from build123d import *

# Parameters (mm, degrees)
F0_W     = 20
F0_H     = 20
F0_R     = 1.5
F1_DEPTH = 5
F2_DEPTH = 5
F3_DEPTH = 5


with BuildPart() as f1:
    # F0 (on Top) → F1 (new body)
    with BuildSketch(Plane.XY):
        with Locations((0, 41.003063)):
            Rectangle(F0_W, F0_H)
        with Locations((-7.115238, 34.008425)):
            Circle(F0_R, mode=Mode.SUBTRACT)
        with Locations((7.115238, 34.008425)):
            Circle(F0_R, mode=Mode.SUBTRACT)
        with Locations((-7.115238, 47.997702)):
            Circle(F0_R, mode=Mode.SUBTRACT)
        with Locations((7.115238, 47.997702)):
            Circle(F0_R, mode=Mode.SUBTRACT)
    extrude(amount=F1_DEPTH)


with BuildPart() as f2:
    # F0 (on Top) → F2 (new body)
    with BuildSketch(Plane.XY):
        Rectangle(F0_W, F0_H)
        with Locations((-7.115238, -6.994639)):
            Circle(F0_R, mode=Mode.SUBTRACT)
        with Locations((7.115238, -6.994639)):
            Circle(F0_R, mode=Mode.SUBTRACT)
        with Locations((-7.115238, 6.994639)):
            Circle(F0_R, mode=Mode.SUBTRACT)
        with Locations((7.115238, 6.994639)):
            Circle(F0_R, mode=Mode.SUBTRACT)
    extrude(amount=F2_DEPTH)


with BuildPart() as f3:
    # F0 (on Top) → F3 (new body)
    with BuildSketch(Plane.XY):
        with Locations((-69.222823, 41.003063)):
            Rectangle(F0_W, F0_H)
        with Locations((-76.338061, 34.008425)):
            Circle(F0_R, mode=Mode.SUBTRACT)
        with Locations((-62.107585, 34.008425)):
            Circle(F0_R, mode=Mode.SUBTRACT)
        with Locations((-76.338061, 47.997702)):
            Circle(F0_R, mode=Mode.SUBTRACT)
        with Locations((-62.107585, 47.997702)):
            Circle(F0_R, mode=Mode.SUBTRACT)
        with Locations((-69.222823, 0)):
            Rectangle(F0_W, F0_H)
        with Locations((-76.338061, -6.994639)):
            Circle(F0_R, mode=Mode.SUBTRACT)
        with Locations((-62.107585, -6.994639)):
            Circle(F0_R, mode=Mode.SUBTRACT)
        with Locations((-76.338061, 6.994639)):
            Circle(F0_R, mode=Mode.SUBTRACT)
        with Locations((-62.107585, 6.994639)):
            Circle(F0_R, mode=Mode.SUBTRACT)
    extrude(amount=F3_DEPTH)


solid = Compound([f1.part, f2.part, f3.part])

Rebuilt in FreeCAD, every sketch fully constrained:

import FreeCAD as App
import Part
import Sketcher

V = App.Vector

doc = App.newDocument("Part")
body = doc.addObject("PartDesign::Body", "Body")

# Sketch on XY plane
sketch1 = body.newObject("Sketcher::SketchObject", "Sketch")
sketch1.AttachmentSupport = (doc.getObject("XY_Plane"), [""])
sketch1.MapMode = "FlatFace"
sketch1.addGeometry(Part.LineSegment(V(-10, 51, 0), V(-10, 31, 0)), False)
sketch1.addGeometry(Part.LineSegment(V(-10, 31, 0), V(10, 31, 0)), False)
sketch1.addGeometry(Part.LineSegment(V(10, 31, 0), V(10, 51, 0)), False)
sketch1.addGeometry(Part.LineSegment(V(10, 51, 0), V(-10, 51, 0)), False)
sketch1.addGeometry(Part.Circle(V(-7.1, 34, 0), V(0, 0, 1), 1.5), False)
sketch1.addGeometry(Part.Circle(V(7.1, 34, 0), V(0, 0, 1), 1.5), False)
sketch1.addGeometry(Part.Circle(V(-7.1, 48, 0), V(0, 0, 1), 1.5), False)
sketch1.addGeometry(Part.Circle(V(7.1, 48, 0), V(0, 0, 1), 1.5), False)
sketch1.addConstraint(Sketcher.Constraint("Coincident", 0, 2, 1, 1))
sketch1.addConstraint(Sketcher.Constraint("Coincident", 1, 2, 2, 1))
sketch1.addConstraint(Sketcher.Constraint("Coincident", 2, 2, 3, 1))
sketch1.addConstraint(Sketcher.Constraint("Coincident", 3, 2, 0, 1))
sketch1.addConstraint(Sketcher.Constraint("Vertical", 0))
sketch1.addConstraint(Sketcher.Constraint("Horizontal", 1))
sketch1.addConstraint(Sketcher.Constraint("Vertical", 2))
sketch1.addConstraint(Sketcher.Constraint("Horizontal", 3))
sketch1.addConstraint(Sketcher.Constraint("Equal", 4, 5))
sketch1.addConstraint(Sketcher.Constraint("Equal", 5, 6))
sketch1.addConstraint(Sketcher.Constraint("Equal", 6, 7))
sketch1.addConstraint(Sketcher.Constraint("Symmetric", 4, 3, 5, 3, -2))
sketch1.addConstraint(Sketcher.Constraint("Symmetric", 6, 3, 7, 3, -2))
sketch1.addConstraint(Sketcher.Constraint("Vertical", 4, 3, 6, 3))
sketch1.addConstraint(Sketcher.Constraint("Equal", 3, 0))
sketch1.addConstraint(Sketcher.Constraint("Diameter", 4, 3.0))
sketch1.addConstraint(Sketcher.Constraint("DistanceX", 1, 1, 1, 2, 20.0))
sketch1.addConstraint(Sketcher.Constraint("DistanceX", 0, 2, -1, 1, 10.0))
sketch1.addConstraint(Sketcher.Constraint("DistanceY", -1, 1, 6, 3, 47.997702))
sketch1.addConstraint(Sketcher.Constraint("DistanceY", 0, 2, 6, 3, 16.994639))
sketch1.addConstraint(Sketcher.Constraint("DistanceX", 4, 3, -1, 1, 7.115238))
sketch1.addConstraint(Sketcher.Constraint("DistanceY", -1, 1, 4, 3, 34.008425))
pad1 = body.newObject("PartDesign::Pad", "Pad")
pad1.Profile = sketch1
pad1.Length = 5
body2 = doc.addObject("PartDesign::Body", "Body001")

# Sketch on XY plane
sketch2 = body2.newObject("Sketcher::SketchObject", "Sketch001")
sketch2.AttachmentSupport = (doc.getObject("XY_Plane001"), [""])
sketch2.MapMode = "FlatFace"
sketch2.addGeometry(Part.LineSegment(V(-10, 10, 0), V(-10, -10, 0)), False)
sketch2.addGeometry(Part.LineSegment(V(-10, -10, 0), V(10, -10, 0)), False)
sketch2.addGeometry(Part.LineSegment(V(10, -10, 0), V(10, 10, 0)), False)
sketch2.addGeometry(Part.LineSegment(V(10, 10, 0), V(-10, 10, 0)), False)
sketch2.addGeometry(Part.Circle(V(-7.1, -7, 0), V(0, 0, 1), 1.5), False)
sketch2.addGeometry(Part.Circle(V(7.1, -7, 0), V(0, 0, 1), 1.5), False)
sketch2.addGeometry(Part.Circle(V(-7.1, 7, 0), V(0, 0, 1), 1.5), False)
sketch2.addGeometry(Part.Circle(V(7.1, 7, 0), V(0, 0, 1), 1.5), False)
sketch2.addConstraint(Sketcher.Constraint("Coincident", 0, 2, 1, 1))
sketch2.addConstraint(Sketcher.Constraint("Coincident", 1, 2, 2, 1))
sketch2.addConstraint(Sketcher.Constraint("Coincident", 2, 2, 3, 1))
sketch2.addConstraint(Sketcher.Constraint("Coincident", 3, 2, 0, 1))
sketch2.addConstraint(Sketcher.Constraint("Vertical", 0))
sketch2.addConstraint(Sketcher.Constraint("Horizontal", 1))
sketch2.addConstraint(Sketcher.Constraint("Vertical", 2))
sketch2.addConstraint(Sketcher.Constraint("Horizontal", 3))
sketch2.addConstraint(Sketcher.Constraint("Equal", 4, 5))
sketch2.addConstraint(Sketcher.Constraint("Equal", 5, 6))
sketch2.addConstraint(Sketcher.Constraint("Equal", 6, 7))
sketch2.addConstraint(Sketcher.Constraint("Symmetric", 5, 3, 6, 3, -1, 1))
sketch2.addConstraint(Sketcher.Constraint("Symmetric", 4, 3, 7, 3, -1, 1))
sketch2.addConstraint(Sketcher.Constraint("Symmetric", 0, 2, 2, 2, -1, 1))
sketch2.addConstraint(Sketcher.Constraint("Symmetric", 4, 3, 5, 3, -2))
sketch2.addConstraint(Sketcher.Constraint("Equal", 3, 0))
sketch2.addConstraint(Sketcher.Constraint("Diameter", 4, 3.0))
sketch2.addConstraint(Sketcher.Constraint("DistanceX", 1, 1, 1, 2, 20.0))
sketch2.addConstraint(Sketcher.Constraint("DistanceY", 4, 3, -1, 1, 6.994639))
sketch2.addConstraint(Sketcher.Constraint("DistanceX", 4, 3, -1, 1, 7.115238))
pad2 = body2.newObject("PartDesign::Pad", "Pad001")
pad2.Profile = sketch2
pad2.Length = 5
body3 = doc.addObject("PartDesign::Body", "Body002")
body3.AllowCompound = True

# Sketch on XY plane
sketch3 = body3.newObject("Sketcher::SketchObject", "Sketch002")
sketch3.AttachmentSupport = (doc.getObject("XY_Plane002"), [""])
sketch3.MapMode = "FlatFace"
sketch3.addGeometry(Part.LineSegment(V(-79.2, 51, 0), V(-79.2, 31, 0)), False)
sketch3.addGeometry(Part.LineSegment(V(-79.2, 31, 0), V(-59.2, 31, 0)), False)
sketch3.addGeometry(Part.LineSegment(V(-59.2, 31, 0), V(-59.2, 51, 0)), False)
sketch3.addGeometry(Part.LineSegment(V(-59.2, 51, 0), V(-79.2, 51, 0)), False)
sketch3.addGeometry(Part.Circle(V(-76.3, 34, 0), V(0, 0, 1), 1.5), False)
sketch3.addGeometry(Part.Circle(V(-62.1, 34, 0), V(0, 0, 1), 1.5), False)
sketch3.addGeometry(Part.Circle(V(-76.3, 48, 0), V(0, 0, 1), 1.5), False)
sketch3.addGeometry(Part.Circle(V(-62.1, 48, 0), V(0, 0, 1), 1.5), False)
sketch3.addGeometry(Part.LineSegment(V(-79.2, 10, 0), V(-79.2, -10, 0)), False)
sketch3.addGeometry(Part.LineSegment(V(-79.2, -10, 0), V(-59.2, -10, 0)), False)
sketch3.addGeometry(Part.LineSegment(V(-59.2, -10, 0), V(-59.2, 10, 0)), False)
sketch3.addGeometry(Part.LineSegment(V(-59.2, 10, 0), V(-79.2, 10, 0)), False)
sketch3.addGeometry(Part.Circle(V(-76.3, -7, 0), V(0, 0, 1), 1.5), False)
sketch3.addGeometry(Part.Circle(V(-62.1, -7, 0), V(0, 0, 1), 1.5), False)
sketch3.addGeometry(Part.Circle(V(-76.3, 7, 0), V(0, 0, 1), 1.5), False)
sketch3.addGeometry(Part.Circle(V(-62.1, 7, 0), V(0, 0, 1), 1.5), False)
sketch3.addConstraint(Sketcher.Constraint("Coincident", 0, 2, 1, 1))
sketch3.addConstraint(Sketcher.Constraint("Coincident", 1, 2, 2, 1))
sketch3.addConstraint(Sketcher.Constraint("Coincident", 2, 2, 3, 1))
sketch3.addConstraint(Sketcher.Constraint("Coincident", 3, 2, 0, 1))
sketch3.addConstraint(Sketcher.Constraint("Coincident", 8, 2, 9, 1))
sketch3.addConstraint(Sketcher.Constraint("Coincident", 9, 2, 10, 1))
sketch3.addConstraint(Sketcher.Constraint("Coincident", 10, 2, 11, 1))
sketch3.addConstraint(Sketcher.Constraint("Coincident", 11, 2, 8, 1))
sketch3.addConstraint(Sketcher.Constraint("Vertical", 0))
sketch3.addConstraint(Sketcher.Constraint("Horizontal", 1))
sketch3.addConstraint(Sketcher.Constraint("Vertical", 2))
sketch3.addConstraint(Sketcher.Constraint("Horizontal", 3))
sketch3.addConstraint(Sketcher.Constraint("Vertical", 8))
sketch3.addConstraint(Sketcher.Constraint("Horizontal", 9))
sketch3.addConstraint(Sketcher.Constraint("Vertical", 10))
sketch3.addConstraint(Sketcher.Constraint("Horizontal", 11))
sketch3.addConstraint(Sketcher.Constraint("Equal", 4, 5))
sketch3.addConstraint(Sketcher.Constraint("Equal", 5, 6))
sketch3.addConstraint(Sketcher.Constraint("Equal", 6, 7))
sketch3.addConstraint(Sketcher.Constraint("Equal", 7, 12))
sketch3.addConstraint(Sketcher.Constraint("Equal", 12, 13))
sketch3.addConstraint(Sketcher.Constraint("Equal", 13, 14))
sketch3.addConstraint(Sketcher.Constraint("Equal", 14, 15))
sketch3.addConstraint(Sketcher.Constraint("Symmetric", 12, 3, 14, 3, -1))
sketch3.addConstraint(Sketcher.Constraint("Symmetric", 13, 3, 15, 3, -1))
sketch3.addConstraint(Sketcher.Constraint("Horizontal", 4, 3, 5, 3))
sketch3.addConstraint(Sketcher.Constraint("Horizontal", 6, 3, 7, 3))
sketch3.addConstraint(Sketcher.Constraint("Horizontal", 12, 3, 13, 3))
sketch3.addConstraint(Sketcher.Constraint("Vertical", 4, 3, 6, 3))
sketch3.addConstraint(Sketcher.Constraint("Vertical", 5, 3, 7, 3))
sketch3.addConstraint(Sketcher.Constraint("Vertical", 6, 3, 12, 3))
sketch3.addConstraint(Sketcher.Constraint("Vertical", 7, 3, 13, 3))
sketch3.addConstraint(Sketcher.Constraint("Vertical", 3, 2, 8, 2))
sketch3.addConstraint(Sketcher.Constraint("Vertical", 2, 2, 9, 2))
sketch3.addConstraint(Sketcher.Constraint("Equal", 11, 0))
sketch3.addConstraint(Sketcher.Constraint("Equal", 2, 8))
sketch3.addConstraint(Sketcher.Constraint("Diameter", 4, 3.0))
sketch3.addConstraint(Sketcher.Constraint("DistanceX", 1, 1, 1, 2, 20.0))
sketch3.addConstraint(Sketcher.Constraint("DistanceY", 8, 2, -1, 1, 10.0))
sketch3.addConstraint(Sketcher.Constraint("DistanceY", -1, 1, 6, 3, 47.997702))
sketch3.addConstraint(Sketcher.Constraint("DistanceX", 4, 3, -1, 1, 76.338061))
sketch3.addConstraint(Sketcher.Constraint("DistanceY", 12, 3, -1, 1, 6.994639))
sketch3.addConstraint(Sketcher.Constraint("DistanceY", 0, 2, 6, 3, 16.994639))
sketch3.addConstraint(Sketcher.Constraint("DistanceX", 0, 2, 5, 3, 17.115238))
sketch3.addConstraint(Sketcher.Constraint("DistanceY", -1, 1, 4, 3, 34.008425))
sketch3.addConstraint(Sketcher.Constraint("DistanceX", 5, 3, -1, 1, 62.107585))
pad3 = body3.newObject("PartDesign::Pad", "Pad002")
pad3.Profile = sketch3
pad3.Length = 5

doc.recompute()
